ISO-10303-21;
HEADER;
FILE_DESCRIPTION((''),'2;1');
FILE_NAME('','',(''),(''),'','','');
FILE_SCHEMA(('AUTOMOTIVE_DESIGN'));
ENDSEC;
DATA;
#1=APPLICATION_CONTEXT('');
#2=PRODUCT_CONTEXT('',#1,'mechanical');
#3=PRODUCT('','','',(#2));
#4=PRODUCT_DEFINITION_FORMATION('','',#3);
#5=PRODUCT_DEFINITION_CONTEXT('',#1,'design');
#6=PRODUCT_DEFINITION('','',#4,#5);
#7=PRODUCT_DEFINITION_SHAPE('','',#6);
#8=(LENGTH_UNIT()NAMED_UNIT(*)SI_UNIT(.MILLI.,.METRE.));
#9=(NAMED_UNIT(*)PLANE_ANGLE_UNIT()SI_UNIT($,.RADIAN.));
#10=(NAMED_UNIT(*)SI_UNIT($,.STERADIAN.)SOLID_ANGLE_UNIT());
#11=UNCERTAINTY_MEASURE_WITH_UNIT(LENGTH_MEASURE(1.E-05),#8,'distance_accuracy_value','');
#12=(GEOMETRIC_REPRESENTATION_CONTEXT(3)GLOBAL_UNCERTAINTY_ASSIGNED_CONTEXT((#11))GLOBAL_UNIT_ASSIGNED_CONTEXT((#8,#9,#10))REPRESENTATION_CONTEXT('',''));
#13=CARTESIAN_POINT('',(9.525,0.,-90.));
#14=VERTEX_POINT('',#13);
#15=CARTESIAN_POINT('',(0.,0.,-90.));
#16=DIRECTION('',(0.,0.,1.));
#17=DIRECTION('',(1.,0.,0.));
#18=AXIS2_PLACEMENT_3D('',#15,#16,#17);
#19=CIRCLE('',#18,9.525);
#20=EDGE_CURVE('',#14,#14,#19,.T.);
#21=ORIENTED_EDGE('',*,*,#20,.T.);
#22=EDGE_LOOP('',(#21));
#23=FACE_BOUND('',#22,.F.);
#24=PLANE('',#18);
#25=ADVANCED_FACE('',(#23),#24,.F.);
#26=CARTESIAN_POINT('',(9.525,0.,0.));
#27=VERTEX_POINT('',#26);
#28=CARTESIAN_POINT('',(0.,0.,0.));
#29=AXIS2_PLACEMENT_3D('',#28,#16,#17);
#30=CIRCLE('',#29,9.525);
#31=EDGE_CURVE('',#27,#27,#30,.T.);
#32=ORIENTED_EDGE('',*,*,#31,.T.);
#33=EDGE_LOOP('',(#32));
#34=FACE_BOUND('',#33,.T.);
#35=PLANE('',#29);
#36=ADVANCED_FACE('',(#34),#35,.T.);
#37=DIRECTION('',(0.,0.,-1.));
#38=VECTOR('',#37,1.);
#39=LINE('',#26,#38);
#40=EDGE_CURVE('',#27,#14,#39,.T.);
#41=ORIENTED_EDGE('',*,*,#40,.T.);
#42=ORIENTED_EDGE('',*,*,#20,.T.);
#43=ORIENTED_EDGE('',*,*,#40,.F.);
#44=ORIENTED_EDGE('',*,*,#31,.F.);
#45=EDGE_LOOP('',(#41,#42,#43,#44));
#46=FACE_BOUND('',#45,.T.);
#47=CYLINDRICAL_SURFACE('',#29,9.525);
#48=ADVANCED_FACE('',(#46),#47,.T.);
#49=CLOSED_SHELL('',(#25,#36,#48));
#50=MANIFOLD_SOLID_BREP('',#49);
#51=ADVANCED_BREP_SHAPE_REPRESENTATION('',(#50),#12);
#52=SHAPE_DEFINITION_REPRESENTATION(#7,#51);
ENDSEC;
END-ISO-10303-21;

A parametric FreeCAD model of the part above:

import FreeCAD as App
import Part
import Sketcher
Q = App.Units.Quantity

doc = App.newDocument("Part")
body = doc.addObject("PartDesign::Body", "Body")

# Sketch on XY plane
sketch1 = body.newObject("Sketcher::SketchObject", "Sketch")
sketch1.AttachmentSupport = (doc.getObject("XY_Plane"), [""])
sketch1.MapMode = "FlatFace"
sketch1.addGeometry(Part.Circle(App.Vector(0, 0, 0), App.Vector(0, 0, 1), 10), False)
sketch1.addConstraint([
    Sketcher.Constraint("Coincident", 0, 3, -1, 1),
    Sketcher.Constraint("Diameter", 0, Q("0.75 in")),
])
pad1 = body.newObject("PartDesign::Pad", "Pad")
pad1.Profile = sketch1
pad1.Length = Q("3.5433071 in")
pad1.Reversed = True

doc.recompute()
